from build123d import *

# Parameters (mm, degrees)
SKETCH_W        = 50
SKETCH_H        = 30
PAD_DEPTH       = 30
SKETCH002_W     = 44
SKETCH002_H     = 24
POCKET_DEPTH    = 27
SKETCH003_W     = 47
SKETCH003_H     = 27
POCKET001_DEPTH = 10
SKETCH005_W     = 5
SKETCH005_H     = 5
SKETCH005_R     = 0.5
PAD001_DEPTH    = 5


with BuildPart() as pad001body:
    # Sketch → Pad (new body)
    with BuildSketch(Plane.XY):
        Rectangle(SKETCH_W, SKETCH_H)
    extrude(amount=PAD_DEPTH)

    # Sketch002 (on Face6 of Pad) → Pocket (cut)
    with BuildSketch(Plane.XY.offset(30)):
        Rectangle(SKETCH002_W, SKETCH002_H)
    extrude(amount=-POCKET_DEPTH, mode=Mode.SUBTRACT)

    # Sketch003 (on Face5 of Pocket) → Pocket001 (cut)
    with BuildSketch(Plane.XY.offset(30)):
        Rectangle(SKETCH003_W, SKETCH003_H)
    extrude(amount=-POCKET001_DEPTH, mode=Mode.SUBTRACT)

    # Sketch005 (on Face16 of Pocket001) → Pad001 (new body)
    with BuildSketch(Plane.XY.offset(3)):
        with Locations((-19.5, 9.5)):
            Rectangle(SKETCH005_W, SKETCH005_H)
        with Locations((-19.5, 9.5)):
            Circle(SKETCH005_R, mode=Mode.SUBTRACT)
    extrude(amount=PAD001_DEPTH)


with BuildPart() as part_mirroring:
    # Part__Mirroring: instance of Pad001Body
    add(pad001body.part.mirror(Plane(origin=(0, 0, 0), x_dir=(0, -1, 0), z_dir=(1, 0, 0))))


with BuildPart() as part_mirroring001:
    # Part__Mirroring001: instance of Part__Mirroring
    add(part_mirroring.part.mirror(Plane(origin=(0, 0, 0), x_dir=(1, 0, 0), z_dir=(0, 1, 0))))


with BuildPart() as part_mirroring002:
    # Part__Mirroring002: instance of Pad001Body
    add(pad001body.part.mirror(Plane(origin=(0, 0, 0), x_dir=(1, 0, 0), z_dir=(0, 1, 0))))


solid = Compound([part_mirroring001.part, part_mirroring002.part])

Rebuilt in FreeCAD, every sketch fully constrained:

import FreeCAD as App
import Part
import Sketcher
from FreeCAD import Vector
Q = App.Units.Quantity

doc = App.newDocument("Part")
body = doc.addObject("PartDesign::Body", "Body")

sketch1 = doc.addObject("Sketcher::SketchObject", "Sketch")
body.addObject(sketch1)
sketch1.AttachmentSupport = (doc.XY_Plane, [""])
sketch1.MapMode = "FlatFace"
sketch1.addGeometry(Part.LineSegment(Vector(-25, 15, 0), Vector(-25, -15, 0)), False)
sketch1.addGeometry(Part.LineSegment(Vector(-25, -15, 0), Vector(25, -15, 0)), False)
sketch1.addGeometry(Part.LineSegment(Vector(25, -15, 0), Vector(25, 15, 0)), False)
sketch1.addGeometry(Part.LineSegment(Vector(25, 15, 0), Vector(-25, 15, 0)), False)
sketch1.addConstraint(Sketcher.Constraint("Coincident", 0, 2, 1, 1))
sketch1.addConstraint(Sketcher.Constraint("Coincident", 1, 2, 2, 1))
sketch1.addConstraint(Sketcher.Constraint("Coincident", 2, 2, 3, 1))
sketch1.addConstraint(Sketcher.Constraint("Coincident", 3, 2, 0, 1))
sketch1.addConstraint(Sketcher.Constraint("Vertical", 0))
sketch1.addConstraint(Sketcher.Constraint("Horizontal", 1))
sketch1.addConstraint(Sketcher.Constraint("Vertical", 2))
sketch1.addConstraint(Sketcher.Constraint("Horizontal", 3))
sketch1.addConstraint(Sketcher.Constraint("Symmetric", 0, 2, 2, 2, -1, 1))
sketch1.addConstraint(Sketcher.Constraint("DistanceX", 1, 1, 1, 2, Q("50 mm")))
sketch1.addConstraint(Sketcher.Constraint("DistanceY", 0, 2, 0, 1, Q("30 mm")))
pad1 = doc.addObject("PartDesign::Pad", "Pad")
body.addObject(pad1)
pad1.Profile = sketch1
pad1.Length = 30

sketch2 = doc.addObject("Sketcher::SketchObject", "Sketch001")
body.addObject(sketch2)
sketch2.AttachmentSupport = (doc.XY_Plane, [""])
sketch2.MapMode = "FlatFace"
sketch2.AttachmentOffset = App.Placement(Vector(0, 0, 30), App.Rotation())
sketch2.addGeometry(Part.LineSegment(Vector(-22, 12, 0), Vector(-22, -12, 0)), False)
sketch2.addGeometry(Part.LineSegment(Vector(-22, -12, 0), Vector(22, -12, 0)), False)
sketch2.addGeometry(Part.LineSegment(Vector(22, -12, 0), Vector(22, 12, 0)), False)
sketch2.addGeometry(Part.LineSegment(Vector(22, 12, 0), Vector(-22, 12, 0)), False)
sketch2.addConstraint(Sketcher.Constraint("Coincident", 0, 2, 1, 1))
sketch2.addConstraint(Sketcher.Constraint("Coincident", 1, 2, 2, 1))
sketch2.addConstraint(Sketcher.Constraint("Coincident", 2, 2, 3, 1))
sketch2.addConstraint(Sketcher.Constraint("Coincident", 3, 2, 0, 1))
sketch2.addConstraint(Sketcher.Constraint("Vertical", 0))
sketch2.addConstraint(Sketcher.Constraint("Horizontal", 1))
sketch2.addConstraint(Sketcher.Constraint("Vertical", 2))
sketch2.addConstraint(Sketcher.Constraint("Horizontal", 3))
sketch2.addConstraint(Sketcher.Constraint("Symmetric", 0, 2, 2, 2, -1, 1))
sketch2.addConstraint(Sketcher.Constraint("DistanceX", 1, 1, 1, 2, Q("44 mm")))
sketch2.addConstraint(Sketcher.Constraint("DistanceY", 0, 2, 0, 1, Q("24 mm")))
pocket1 = doc.addObject("PartDesign::Pocket", "Pocket")
body.addObject(pocket1)
pocket1.Profile = sketch2
pocket1.Length = 27

sketch3 = doc.addObject("Sketcher::SketchObject", "Sketch002")
body.addObject(sketch3)
sketch3.AttachmentSupport = (doc.XY_Plane, [""])
sketch3.MapMode = "FlatFace"
sketch3.AttachmentOffset = App.Placement(Vector(0, 0, 30), App.Rotation())
sketch3.addGeometry(Part.LineSegment(Vector(-24, 14, 0), Vector(-24, -14, 0)), False)
sketch3.addGeometry(Part.LineSegment(Vector(-24, -14, 0), Vector(24, -14, 0)), False)
sketch3.addGeometry(Part.LineSegment(Vector(24, -14, 0), Vector(24, 14, 0)), False)
sketch3.addGeometry(Part.LineSegment(Vector(24, 14, 0), Vector(-24, 14, 0)), False)
sketch3.addConstraint(Sketcher.Constraint("Coincident", 0, 2, 1, 1))
sketch3.addConstraint(Sketcher.Constraint("Coincident", 1, 2, 2, 1))
sketch3.addConstraint(Sketcher.Constraint("Coincident", 2, 2, 3, 1))
sketch3.addConstraint(Sketcher.Constraint("Coincident", 3, 2, 0, 1))
sketch3.addConstraint(Sketcher.Constraint("Vertical", 0))
sketch3.addConstraint(Sketcher.Constraint("Horizontal", 1))
sketch3.addConstraint(Sketcher.Constraint("Vertical", 2))
sketch3.addConstraint(Sketcher.Constraint("Horizontal", 3))
sketch3.addConstraint(Sketcher.Constraint("Symmetric", 0, 2, 2, 2, -1, 1))
sketch3.addConstraint(Sketcher.Constraint("DistanceX", 1, 1, 1, 2, Q("47 mm")))
sketch3.addConstraint(Sketcher.Constraint("DistanceY", 0, 2, 0, 1, Q("27 mm")))
pocket2 = doc.addObject("PartDesign::Pocket", "Pocket001")
body.addObject(pocket2)
pocket2.Profile = sketch3
pocket2.Length = 10

sketch4 = doc.addObject("Sketcher::SketchObject", "Sketch003")
body.addObject(sketch4)
sketch4.AttachmentSupport = (doc.XY_Plane, [""])
sketch4.MapMode = "FlatFace"
sketch4.AttachmentOffset = App.Placement(Vector(0, 0, 3), App.Rotation())
sketch4.addGeometry(Part.LineSegment(Vector(-22, 12, 0), Vector(-22, 7, 0)), False)
sketch4.addGeometry(Part.LineSegment(Vector(-22, 7, 0), Vector(-17, 7, 0)), False)
sketch4.addGeometry(Part.LineSegment(Vector(-17, 7, 0), Vector(-17, 12, 0)), False)
sketch4.addGeometry(Part.LineSegment(Vector(-17, 12, 0), Vector(-22, 12, 0)), False)
sketch4.addGeometry(Part.Circle(Vector(-19.5, 9.5, 0), Vector(0, 0, 1), 0.5), False)
sketch4.addConstraint(Sketcher.Constraint("Coincident", 0, 2, 1, 1))
sketch4.addConstraint(Sketcher.Constraint("Coincident", 1, 2, 2, 1))
sketch4.addConstraint(Sketcher.Constraint("Coincident", 2, 2, 3, 1))
sketch4.addConstraint(Sketcher.Constraint("Coincident", 3, 2, 0, 1))
sketch4.addConstraint(Sketcher.Constraint("Vertical", 0))
sketch4.addConstraint(Sketcher.Constraint("Horizontal", 1))
sketch4.addConstraint(Sketcher.Constraint("Vertical", 2))
sketch4.addConstraint(Sketcher.Constraint("Horizontal", 3))
sketch4.addConstraint(Sketcher.Constraint("Equal", 3, 0))
sketch4.addConstraint(Sketcher.Constraint("Diameter", 4, Q("1 mm")))
sketch4.addConstraint(Sketcher.Constraint("DistanceX", 1, 1, 1, 2, Q("5 mm")))
sketch4.addConstraint(Sketcher.Constraint("DistanceX", 0, 2, -1, 1, Q("22 mm")))
sketch4.addConstraint(Sketcher.Constraint("DistanceY", -1, 1, 0, 2, Q("7 mm")))
sketch4.addConstraint(Sketcher.Constraint("DistanceX", 4, 3, -1, 1, Q("19.5 mm")))
sketch4.addConstraint(Sketcher.Constraint("DistanceY", -1, 1, 4, 3, Q("9.5 mm")))
pad2 = doc.addObject("PartDesign::Pad", "Pad001")
body.addObject(pad2)
pad2.Profile = sketch4
pad2.Length = 5
body2 = doc.addObject("PartDesign::Body", "Body001")
doc.recompute()

mirroring = doc.addObject("Part::Mirroring", "Mirroring")
mirroring.Source = body
mirroring.Base = Vector(0, 0, 0)
mirroring.Normal = Vector(1, 0, 0)
body2.BaseFeature = mirroring
doc.recompute()
body3 = doc.addObject("PartDesign::Body", "Body002")
doc.recompute()

mirroring2 = doc.addObject("Part::Mirroring", "Mirroring001")
mirroring2.Source = body2
mirroring2.Base = Vector(0, 0, 0)
mirroring2.Normal = Vector(0, 1, 0)
body3.BaseFeature = mirroring2
doc.recompute()
body4 = doc.addObject("PartDesign::Body", "Body003")
doc.recompute()

mirroring3 = doc.addObject("Part::Mirroring", "Mirroring002")
mirroring3.Source = body
mirroring3.Base = Vector(0, 0, 0)
mirroring3.Normal = Vector(0, 1, 0)
body4.BaseFeature = mirroring3
doc.recompute()
body.Visibility = False
body2.Visibility = False
mirroring.Visibility = False
mirroring2.Visibility = False
mirroring3.Visibility = False

doc.recompute()
